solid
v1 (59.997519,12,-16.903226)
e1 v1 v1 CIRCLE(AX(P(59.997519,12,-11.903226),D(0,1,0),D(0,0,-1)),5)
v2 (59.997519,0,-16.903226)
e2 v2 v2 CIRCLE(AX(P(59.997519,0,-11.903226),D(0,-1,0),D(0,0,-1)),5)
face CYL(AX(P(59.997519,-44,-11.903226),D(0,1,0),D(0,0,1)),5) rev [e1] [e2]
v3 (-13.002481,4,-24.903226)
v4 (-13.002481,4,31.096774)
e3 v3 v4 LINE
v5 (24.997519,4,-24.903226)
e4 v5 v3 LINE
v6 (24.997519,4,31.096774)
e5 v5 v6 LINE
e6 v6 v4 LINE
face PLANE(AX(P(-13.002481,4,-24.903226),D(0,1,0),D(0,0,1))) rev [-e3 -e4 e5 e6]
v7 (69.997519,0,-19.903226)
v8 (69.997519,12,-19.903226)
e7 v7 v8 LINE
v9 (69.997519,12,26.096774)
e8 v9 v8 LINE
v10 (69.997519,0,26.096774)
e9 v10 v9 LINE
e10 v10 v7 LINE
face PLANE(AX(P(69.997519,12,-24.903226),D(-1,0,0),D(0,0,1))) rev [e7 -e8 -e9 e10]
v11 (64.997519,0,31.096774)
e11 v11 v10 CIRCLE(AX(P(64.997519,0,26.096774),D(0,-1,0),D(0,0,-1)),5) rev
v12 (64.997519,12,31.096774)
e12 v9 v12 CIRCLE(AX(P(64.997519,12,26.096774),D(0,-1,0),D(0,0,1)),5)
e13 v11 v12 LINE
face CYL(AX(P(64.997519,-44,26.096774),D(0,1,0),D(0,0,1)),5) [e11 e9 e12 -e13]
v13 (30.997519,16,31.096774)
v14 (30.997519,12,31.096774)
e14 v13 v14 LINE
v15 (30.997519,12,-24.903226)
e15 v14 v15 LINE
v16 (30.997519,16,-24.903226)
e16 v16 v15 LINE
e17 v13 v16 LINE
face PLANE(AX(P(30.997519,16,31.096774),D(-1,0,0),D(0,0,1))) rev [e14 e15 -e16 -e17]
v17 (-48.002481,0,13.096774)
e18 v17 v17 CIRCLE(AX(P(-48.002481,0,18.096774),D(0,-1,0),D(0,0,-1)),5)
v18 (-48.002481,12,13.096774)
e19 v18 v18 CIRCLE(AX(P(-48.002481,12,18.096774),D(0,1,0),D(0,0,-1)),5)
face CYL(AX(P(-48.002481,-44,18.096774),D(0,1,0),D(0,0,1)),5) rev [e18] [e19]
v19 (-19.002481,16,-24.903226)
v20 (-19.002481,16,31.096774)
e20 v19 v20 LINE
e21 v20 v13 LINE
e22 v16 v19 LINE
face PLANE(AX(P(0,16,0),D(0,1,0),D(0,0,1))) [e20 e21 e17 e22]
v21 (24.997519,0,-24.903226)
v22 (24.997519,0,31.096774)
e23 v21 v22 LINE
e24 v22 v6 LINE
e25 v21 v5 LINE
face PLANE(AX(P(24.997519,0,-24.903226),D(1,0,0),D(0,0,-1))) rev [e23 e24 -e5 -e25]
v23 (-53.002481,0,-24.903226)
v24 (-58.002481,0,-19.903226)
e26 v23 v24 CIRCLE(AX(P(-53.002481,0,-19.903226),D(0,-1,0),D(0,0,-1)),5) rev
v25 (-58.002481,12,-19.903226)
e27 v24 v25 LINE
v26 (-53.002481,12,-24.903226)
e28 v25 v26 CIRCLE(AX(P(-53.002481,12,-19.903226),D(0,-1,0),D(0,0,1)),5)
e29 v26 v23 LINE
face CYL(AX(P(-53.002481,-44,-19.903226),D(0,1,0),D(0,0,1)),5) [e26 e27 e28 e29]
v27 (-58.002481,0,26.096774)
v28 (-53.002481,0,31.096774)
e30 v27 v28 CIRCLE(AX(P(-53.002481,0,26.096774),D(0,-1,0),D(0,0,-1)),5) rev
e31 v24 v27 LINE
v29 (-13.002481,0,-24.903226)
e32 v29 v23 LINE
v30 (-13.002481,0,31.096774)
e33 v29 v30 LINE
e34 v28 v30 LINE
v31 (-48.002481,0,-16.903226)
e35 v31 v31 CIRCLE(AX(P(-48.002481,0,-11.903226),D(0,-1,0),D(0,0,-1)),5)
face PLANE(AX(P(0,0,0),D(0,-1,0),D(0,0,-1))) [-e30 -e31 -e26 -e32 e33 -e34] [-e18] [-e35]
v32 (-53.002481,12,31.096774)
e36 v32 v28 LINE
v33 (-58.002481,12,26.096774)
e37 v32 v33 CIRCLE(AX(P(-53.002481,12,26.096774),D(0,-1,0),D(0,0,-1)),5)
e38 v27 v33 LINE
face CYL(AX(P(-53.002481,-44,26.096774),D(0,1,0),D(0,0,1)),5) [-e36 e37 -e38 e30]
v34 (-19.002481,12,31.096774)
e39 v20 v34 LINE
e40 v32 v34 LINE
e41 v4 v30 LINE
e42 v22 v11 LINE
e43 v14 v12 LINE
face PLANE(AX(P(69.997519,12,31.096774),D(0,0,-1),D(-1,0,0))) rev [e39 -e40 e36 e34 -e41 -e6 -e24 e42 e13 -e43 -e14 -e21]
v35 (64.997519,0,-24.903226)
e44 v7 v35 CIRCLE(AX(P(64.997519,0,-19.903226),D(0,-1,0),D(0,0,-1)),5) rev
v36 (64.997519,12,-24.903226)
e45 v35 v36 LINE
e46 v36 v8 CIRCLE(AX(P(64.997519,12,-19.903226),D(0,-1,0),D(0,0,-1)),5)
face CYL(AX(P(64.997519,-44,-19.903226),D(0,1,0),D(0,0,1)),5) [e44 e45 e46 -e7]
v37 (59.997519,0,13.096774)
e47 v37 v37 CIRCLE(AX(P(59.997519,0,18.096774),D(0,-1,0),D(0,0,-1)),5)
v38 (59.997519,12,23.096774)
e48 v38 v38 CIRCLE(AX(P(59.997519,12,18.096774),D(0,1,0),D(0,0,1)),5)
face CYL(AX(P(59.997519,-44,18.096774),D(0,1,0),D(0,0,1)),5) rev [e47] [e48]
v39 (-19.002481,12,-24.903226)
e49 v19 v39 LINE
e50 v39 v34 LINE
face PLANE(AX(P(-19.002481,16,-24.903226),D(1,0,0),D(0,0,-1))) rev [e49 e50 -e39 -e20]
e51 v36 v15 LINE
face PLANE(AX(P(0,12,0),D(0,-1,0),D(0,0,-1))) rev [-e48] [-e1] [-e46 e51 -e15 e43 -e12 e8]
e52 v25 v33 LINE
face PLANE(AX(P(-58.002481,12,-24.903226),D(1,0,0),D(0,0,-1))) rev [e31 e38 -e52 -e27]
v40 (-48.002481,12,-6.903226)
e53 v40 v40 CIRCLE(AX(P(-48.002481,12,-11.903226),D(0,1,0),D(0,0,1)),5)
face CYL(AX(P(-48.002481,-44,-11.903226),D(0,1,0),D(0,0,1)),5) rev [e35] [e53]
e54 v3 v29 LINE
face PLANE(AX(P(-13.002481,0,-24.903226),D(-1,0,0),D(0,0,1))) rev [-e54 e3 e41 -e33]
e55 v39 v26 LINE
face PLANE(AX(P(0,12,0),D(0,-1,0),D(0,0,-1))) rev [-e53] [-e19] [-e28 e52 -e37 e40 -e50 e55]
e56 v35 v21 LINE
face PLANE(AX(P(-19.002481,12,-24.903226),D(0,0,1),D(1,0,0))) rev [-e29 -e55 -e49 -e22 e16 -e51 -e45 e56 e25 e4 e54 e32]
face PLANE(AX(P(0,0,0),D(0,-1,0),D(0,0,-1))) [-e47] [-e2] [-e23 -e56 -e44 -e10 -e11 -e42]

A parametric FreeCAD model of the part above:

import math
import FreeCAD as App
import Part
import Sketcher
Q = App.Units.Quantity

doc = App.newDocument("Part")
body = doc.addObject("PartDesign::Body", "Body")

# Sketch on XZ plane
sketch1 = body.newObject("Sketcher::SketchObject", "Sketch")
sketch1.AttachmentSupport = (doc.getObject("XZ_Plane"), [""])
sketch1.MapMode = "FlatFace"
sketch1.addGeometry([
    Part.LineSegment(App.Vector(70, 31, 0), App.Vector(70, -25, 0)),
    Part.LineSegment(App.Vector(70, -25, 0), App.Vector(-58, -25, 0)),
    Part.LineSegment(App.Vector(-58, -25, 0), App.Vector(-58, 31, 0)),
    Part.LineSegment(App.Vector(-58, 31, 0), App.Vector(70, 31, 0)),
], False)
sketch1.addConstraint([
    Sketcher.Constraint("Coincident", 0, 2, 1, 1),
    Sketcher.Constraint("Coincident", 1, 2, 2, 1),
    Sketcher.Constraint("Coincident", 2, 2, 3, 1),
    Sketcher.Constraint("Coincident", 3, 2, 0, 1),
    Sketcher.Constraint("Vertical", 0),
    Sketcher.Constraint("Horizontal", 1),
    Sketcher.Constraint("Vertical", 2),
    Sketcher.Constraint("Horizontal", 3),
    Sketcher.Constraint("DistanceX", 1, 2, 1, 1, Q("128 mm")),
    Sketcher.Constraint("DistanceY", 0, 2, 0, 1, Q("56 mm")),
    Sketcher.Constraint("DistanceX", -1, 1, 0, 2, Q("69.997519 mm")),
    Sketcher.Constraint("DistanceY", 0, 2, -1, 1, Q("24.903226 mm")),
])
pad1 = body.newObject("PartDesign::Pad", "Pad")
pad1.Profile = sketch1
pad1.Length = 12
pad1.Reversed = True

# Sketch on XZ plane
sketch2 = body.newObject("Sketcher::SketchObject", "Sketch001")
sketch2.AttachmentSupport = (doc.getObject("XZ_Plane"), [""])
sketch2.MapMode = "FlatFace"
sketch2.AttachmentOffset = App.Placement(App.Vector(0, 0, -12), App.Rotation())
sketch2.addGeometry([
    Part.LineSegment(App.Vector(-19, -25, 0), App.Vector(-19, 31, 0)),
    Part.LineSegment(App.Vector(-19, 31, 0), App.Vector(31, 31, 0)),
    Part.LineSegment(App.Vector(31, 31, 0), App.Vector(31, -25, 0)),
    Part.LineSegment(App.Vector(31, -25, 0), App.Vector(-19, -25, 0)),
], False)
sketch2.addConstraint([
    Sketcher.Constraint("Coincident", 0, 2, 1, 1),
    Sketcher.Constraint("Coincident", 1, 2, 2, 1),
    Sketcher.Constraint("Coincident", 2, 2, 3, 1),
    Sketcher.Constraint("Coincident", 3, 2, 0, 1),
    Sketcher.Constraint("Vertical", 0),
    Sketcher.Constraint("Horizontal", 1),
    Sketcher.Constraint("Vertical", 2),
    Sketcher.Constraint("Horizontal", 3),
    Sketcher.Constraint("DistanceX", 1, 1, 1, 2, Q("50 mm")),
    Sketcher.Constraint("DistanceY", 0, 1, 0, 2, Q("56 mm")),
    Sketcher.Constraint("DistanceX", 0, 2, -1, 1, Q("19.002481 mm")),
    Sketcher.Constraint("DistanceY", -1, 1, 0, 2, Q("31.096774 mm")),
])
pad2 = body.newObject("PartDesign::Pad", "Pad001")
pad2.Profile = sketch2
pad2.Length = 4
pad2.Reversed = True

# Sketch on XY plane
sketch3 = body.newObject("Sketcher::SketchObject", "Sketch002")
sketch3.AttachmentSupport = (doc.getObject("XY_Plane"), [""])
sketch3.MapMode = "FlatFace"
sketch3.AttachmentOffset = App.Placement(App.Vector(0, 0, 31.096774), App.Rotation())
sketch3.addGeometry([
    Part.LineSegment(App.Vector(-13, 4, 0), App.Vector(-13, 0, 0)),
    Part.LineSegment(App.Vector(-13, 0, 0), App.Vector(25, 0, 0)),
    Part.LineSegment(App.Vector(25, 0, 0), App.Vector(25, 4, 0)),
    Part.LineSegment(App.Vector(25, 4, 0), App.Vector(-13, 4, 0)),
], False)
sketch3.addConstraint([
    Sketcher.Constraint("Coincident", 0, 2, 1, 1),
    Sketcher.Constraint("Coincident", 1, 2, 2, 1),
    Sketcher.Constraint("Coincident", 2, 2, 3, 1),
    Sketcher.Constraint("Coincident", 3, 2, 0, 1),
    Sketcher.Constraint("Vertical", 0),
    Sketcher.Constraint("Horizontal", 1),
    Sketcher.Constraint("Vertical", 2),
    Sketcher.Constraint("Horizontal", 3),
    Sketcher.Constraint("PointOnObject", 0, 2, -1),
    Sketcher.Constraint("DistanceX", 1, 1, 1, 2, Q("38 mm")),
    Sketcher.Constraint("DistanceY", 0, 2, 0, 1, Q("4 mm")),
    Sketcher.Constraint("DistanceX", 0, 2, -1, 1, Q("13.002481 mm")),
])
pocket1 = body.newObject("PartDesign::Pocket", "Pocket")
pocket1.Profile = sketch3
pocket1.Length = 56

# Sketch on XZ plane
sketch4 = body.newObject("Sketcher::SketchObject", "Sketch003")
sketch4.AttachmentSupport = (doc.getObject("XZ_Plane"), [""])
sketch4.MapMode = "FlatFace"
sketch4.AttachmentOffset = App.Placement(App.Vector(0, 0, -12), App.Rotation())
sketch4.addGeometry([
    Part.Circle(App.Vector(-48, -12, 0), App.Vector(0, 0, 1), 5),
    Part.Circle(App.Vector(-48, 18, 0), App.Vector(0, 0, 1), 5),
    Part.Circle(App.Vector(60, 18, 0), App.Vector(0, 0, 1), 5),
    Part.Circle(App.Vector(60, -12, 0), App.Vector(0, 0, 1), 5),
], False)
sketch4.addConstraint([
    Sketcher.Constraint("Equal", 0, 1),
    Sketcher.Constraint("Equal", 1, 2),
    Sketcher.Constraint("Equal", 2, 3),
    Sketcher.Constraint("Horizontal", 1, 3, 2, 3),
    Sketcher.Constraint("Horizontal", 0, 3, 3, 3),
    Sketcher.Constraint("Vertical", 0, 3, 1, 3),
    Sketcher.Constraint("Vertical", 2, 3, 3, 3),
    Sketcher.Constraint("Diameter", 0, Q("10 mm")),
    Sketcher.Constraint("DistanceY", 0, 3, 1, 3, Q("30 mm")),
    Sketcher.Constraint("DistanceX", 1, 3, 2, 3, Q("108 mm")),
    Sketcher.Constraint("DistanceX", 0, 3, -1, 1, Q("48.002481 mm")),
    Sketcher.Constraint("DistanceY", 0, 3, -1, 1, Q("11.903226 mm")),
])
pocket2 = body.newObject("PartDesign::Pocket", "Pocket001")
pocket2.Profile = sketch4
pocket2.Length = 56
pocket2.Reversed = True

# Sketch on XZ plane
sketch5 = body.newObject("Sketcher::SketchObject", "Sketch004")
sketch5.AttachmentSupport = (doc.getObject("XZ_Plane"), [""])
sketch5.MapMode = "FlatFace"
sketch5.AttachmentOffset = App.Placement(App.Vector(0, 0, -12), App.Rotation())
sketch5.addGeometry([
    Part.LineSegment(App.Vector(-58, -25, 0), App.Vector(-58, -20, 0)),  # 0
    Part.ArcOfCircle(Part.Circle(App.Vector(-53, -20, 0), App.Vector(0, 0, 1), 5), math.radians(180), math.radians(270)),  # 1
    Part.LineSegment(App.Vector(-53, -25, 0), App.Vector(-58, -25, 0)),  # 2
    Part.LineSegment(App.Vector(70, 31, 0), App.Vector(70, 26, 0)),  # 3
    Part.ArcOfCircle(Part.Circle(App.Vector(65, 26, 0), App.Vector(0, 0, 1), 5), math.radians(0), math.radians(90)),  # 4
    Part.LineSegment(App.Vector(65, 31, 0), App.Vector(70, 31, 0)),  # 5
    Part.LineSegment(App.Vector(-58, 31, 0), App.Vector(-53, 31, 0)),  # 6
    Part.ArcOfCircle(Part.Circle(App.Vector(-53, 26, 0), App.Vector(0, 0, 1), 5), math.radians(90), math.radians(180)),  # 7
    Part.LineSegment(App.Vector(-58, 26, 0), App.Vector(-58, 31, 0)),  # 8
    Part.LineSegment(App.Vector(70, -25, 0), App.Vector(65, -25, 0)),  # 9
    Part.ArcOfCircle(Part.Circle(App.Vector(65, -20, 0), App.Vector(0, 0, 1), 5), math.radians(-90), math.radians(0)),  # 10
    Part.LineSegment(App.Vector(70, -20, 0), App.Vector(70, -25, 0)),  # 11
], False)
sketch5.addConstraint([
    Sketcher.Constraint("Tangent", 0, 2, 1, 1),
    Sketcher.Constraint("Tangent", 1, 2, 2, 1),
    Sketcher.Constraint("Coincident", 2, 2, 0, 1),
    Sketcher.Constraint("Tangent", 3, 2, 4, 1),
    Sketcher.Constraint("Tangent", 4, 2, 5, 1),
    Sketcher.Constraint("Coincident", 5, 2, 3, 1),
    Sketcher.Constraint("Tangent", 6, 2, 7, 1),
    Sketcher.Constraint("Tangent", 7, 2, 8, 1),
    Sketcher.Constraint("Coincident", 8, 2, 6, 1),
    Sketcher.Constraint("Tangent", 9, 2, 10, 1),
    Sketcher.Constraint("Tangent", 10, 2, 11, 1),
    Sketcher.Constraint("Coincident", 11, 2, 9, 1),
    Sketcher.Constraint("Vertical", 0),
    Sketcher.Constraint("Horizontal", 2),
    Sketcher.Constraint("Vertical", 3),
    Sketcher.Constraint("Horizontal", 5),
    Sketcher.Constraint("Horizontal", 6),
    Sketcher.Constraint("Vertical", 8),
    Sketcher.Constraint("Horizontal", 9),
    Sketcher.Constraint("Vertical", 11),
    Sketcher.Constraint("Equal", 1, 4),
    Sketcher.Constraint("Equal", 4, 7),
    Sketcher.Constraint("Equal", 7, 10),
    Sketcher.Constraint("Horizontal", 4, 3, 7, 3),
    Sketcher.Constraint("Horizontal", 1, 3, 10, 3),
    Sketcher.Constraint("Vertical", 1, 3, 7, 3),
    Sketcher.Constraint("Vertical", 4, 3, 10, 3),
    Sketcher.Constraint("Radius", 1, Q("5 mm")),
    Sketcher.Constraint("DistanceX", 1, 3, 4, 3, Q("118 mm")),
    Sketcher.Constraint("DistanceY", 1, 3, 4, 3, Q("46 mm")),
    Sketcher.Constraint("DistanceX", 1, 3, -1, 1, Q("53.002481 mm")),
    Sketcher.Constraint("DistanceY", 1, 3, -1, 1, Q("19.903226 mm")),
])
pocket3 = body.newObject("PartDesign::Pocket", "Pocket002")
pocket3.Profile = sketch5
pocket3.Length = 56
pocket3.Reversed = True

doc.recompute()
